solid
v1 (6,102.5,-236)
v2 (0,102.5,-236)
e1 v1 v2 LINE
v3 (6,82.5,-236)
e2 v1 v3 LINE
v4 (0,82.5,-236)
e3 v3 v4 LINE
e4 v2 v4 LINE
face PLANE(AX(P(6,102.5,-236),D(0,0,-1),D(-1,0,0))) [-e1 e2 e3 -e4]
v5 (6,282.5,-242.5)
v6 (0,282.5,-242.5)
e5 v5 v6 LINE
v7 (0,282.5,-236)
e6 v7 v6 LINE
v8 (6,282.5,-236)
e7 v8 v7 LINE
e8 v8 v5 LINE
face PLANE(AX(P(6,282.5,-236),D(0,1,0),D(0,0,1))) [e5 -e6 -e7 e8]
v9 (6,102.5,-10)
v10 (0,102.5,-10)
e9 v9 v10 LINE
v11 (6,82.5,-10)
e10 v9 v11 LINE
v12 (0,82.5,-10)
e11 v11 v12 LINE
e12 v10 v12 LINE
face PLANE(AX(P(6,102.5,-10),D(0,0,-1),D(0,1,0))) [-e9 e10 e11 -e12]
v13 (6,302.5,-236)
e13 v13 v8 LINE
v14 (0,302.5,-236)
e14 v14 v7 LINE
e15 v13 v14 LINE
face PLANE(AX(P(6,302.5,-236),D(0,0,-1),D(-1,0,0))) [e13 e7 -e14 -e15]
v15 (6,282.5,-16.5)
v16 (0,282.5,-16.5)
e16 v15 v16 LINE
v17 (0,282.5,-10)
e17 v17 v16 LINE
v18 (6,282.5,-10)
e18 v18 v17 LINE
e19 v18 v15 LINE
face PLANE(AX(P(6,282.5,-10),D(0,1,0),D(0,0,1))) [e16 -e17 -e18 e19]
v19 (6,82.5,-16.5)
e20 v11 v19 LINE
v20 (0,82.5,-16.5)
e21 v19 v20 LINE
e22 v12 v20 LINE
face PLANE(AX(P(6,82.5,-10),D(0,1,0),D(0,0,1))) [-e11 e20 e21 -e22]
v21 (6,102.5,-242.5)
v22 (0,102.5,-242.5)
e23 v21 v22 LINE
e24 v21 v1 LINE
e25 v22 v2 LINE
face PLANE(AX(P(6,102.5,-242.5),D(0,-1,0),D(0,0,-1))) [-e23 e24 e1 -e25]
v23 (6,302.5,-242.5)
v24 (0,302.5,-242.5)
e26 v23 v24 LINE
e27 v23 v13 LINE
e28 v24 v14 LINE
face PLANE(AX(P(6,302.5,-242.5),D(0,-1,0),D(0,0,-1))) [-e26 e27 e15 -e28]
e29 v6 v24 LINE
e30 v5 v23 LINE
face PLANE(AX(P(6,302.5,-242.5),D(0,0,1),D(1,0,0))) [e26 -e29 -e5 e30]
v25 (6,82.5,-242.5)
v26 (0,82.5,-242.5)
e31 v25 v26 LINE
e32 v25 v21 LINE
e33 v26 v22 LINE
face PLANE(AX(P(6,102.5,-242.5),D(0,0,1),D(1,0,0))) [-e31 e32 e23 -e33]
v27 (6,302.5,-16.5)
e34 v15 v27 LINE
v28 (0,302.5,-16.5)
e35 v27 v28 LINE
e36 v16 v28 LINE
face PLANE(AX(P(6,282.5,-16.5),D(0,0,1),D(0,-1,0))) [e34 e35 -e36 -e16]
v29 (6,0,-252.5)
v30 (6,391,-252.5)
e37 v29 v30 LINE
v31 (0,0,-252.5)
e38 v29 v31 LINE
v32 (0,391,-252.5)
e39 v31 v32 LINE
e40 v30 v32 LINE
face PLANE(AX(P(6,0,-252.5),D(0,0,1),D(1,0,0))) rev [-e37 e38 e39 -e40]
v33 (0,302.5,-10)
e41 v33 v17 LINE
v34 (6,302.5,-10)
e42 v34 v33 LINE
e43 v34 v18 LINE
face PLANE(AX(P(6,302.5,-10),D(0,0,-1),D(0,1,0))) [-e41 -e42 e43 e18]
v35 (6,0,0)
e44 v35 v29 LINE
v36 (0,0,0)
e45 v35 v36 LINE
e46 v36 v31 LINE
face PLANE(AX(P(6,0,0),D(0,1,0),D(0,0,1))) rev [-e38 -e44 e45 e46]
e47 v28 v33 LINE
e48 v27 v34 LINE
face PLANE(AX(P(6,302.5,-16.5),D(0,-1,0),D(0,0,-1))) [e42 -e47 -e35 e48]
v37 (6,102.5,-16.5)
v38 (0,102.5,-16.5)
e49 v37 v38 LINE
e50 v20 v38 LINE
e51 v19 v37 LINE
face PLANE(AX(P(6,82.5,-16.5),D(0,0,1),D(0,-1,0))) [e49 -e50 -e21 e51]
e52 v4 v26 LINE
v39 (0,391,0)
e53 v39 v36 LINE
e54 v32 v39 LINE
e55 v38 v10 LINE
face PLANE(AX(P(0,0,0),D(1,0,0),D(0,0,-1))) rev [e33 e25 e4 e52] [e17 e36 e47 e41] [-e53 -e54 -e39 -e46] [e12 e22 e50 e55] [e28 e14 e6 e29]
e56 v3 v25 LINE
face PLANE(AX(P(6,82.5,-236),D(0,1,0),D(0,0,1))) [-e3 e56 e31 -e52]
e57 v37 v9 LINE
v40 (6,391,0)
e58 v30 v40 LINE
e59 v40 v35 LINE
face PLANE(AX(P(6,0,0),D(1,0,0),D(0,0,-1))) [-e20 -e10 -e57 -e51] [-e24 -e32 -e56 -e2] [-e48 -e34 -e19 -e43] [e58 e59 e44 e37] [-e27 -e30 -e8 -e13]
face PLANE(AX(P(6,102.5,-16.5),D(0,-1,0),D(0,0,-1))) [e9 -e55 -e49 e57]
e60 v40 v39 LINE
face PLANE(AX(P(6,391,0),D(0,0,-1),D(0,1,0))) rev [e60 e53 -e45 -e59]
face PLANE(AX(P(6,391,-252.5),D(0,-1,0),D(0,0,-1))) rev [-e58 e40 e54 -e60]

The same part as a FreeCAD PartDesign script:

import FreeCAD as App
import Part
import Sketcher
from FreeCAD import Vector
Q = App.Units.Quantity

doc = App.newDocument("Part")
body = doc.addObject("PartDesign::Body", "Body")

# Sketch on YZ plane
sketch1 = body.newObject("Sketcher::SketchObject", "Sketch")
sketch1.AttachmentSupport = (doc.getObject("YZ_Plane"), [""])
sketch1.MapMode = "FlatFace"
sketch1.addGeometry(Part.LineSegment(Vector(391, 0, 0), Vector(0, 0, 0)), False)
sketch1.addGeometry(Part.LineSegment(Vector(0, 0, 0), Vector(0, -252, 0)), False)
sketch1.addGeometry(Part.LineSegment(Vector(0, -252, 0), Vector(391, -252, 0)), False)
sketch1.addGeometry(Part.LineSegment(Vector(391, -252, 0), Vector(391, 0, 0)), False)
sketch1.addGeometry(Part.LineSegment(Vector(82, -16, 0), Vector(82, -10, 0)), False)
sketch1.addGeometry(Part.LineSegment(Vector(82, -10, 0), Vector(102, -10, 0)), False)
sketch1.addGeometry(Part.LineSegment(Vector(102, -10, 0), Vector(102, -16, 0)), False)
sketch1.addGeometry(Part.LineSegment(Vector(102, -16, 0), Vector(82, -16, 0)), False)
sketch1.addGeometry(Part.LineSegment(Vector(82, -242, 0), Vector(82, -236, 0)), False)
sketch1.addGeometry(Part.LineSegment(Vector(82, -236, 0), Vector(102, -236, 0)), False)
sketch1.addGeometry(Part.LineSegment(Vector(102, -236, 0), Vector(102, -242, 0)), False)
sketch1.addGeometry(Part.LineSegment(Vector(102, -242, 0), Vector(82, -242, 0)), False)
sketch1.addGeometry(Part.LineSegment(Vector(282, -16, 0), Vector(282, -10, 0)), False)
sketch1.addGeometry(Part.LineSegment(Vector(282, -10, 0), Vector(302, -10, 0)), False)
sketch1.addGeometry(Part.LineSegment(Vector(302, -10, 0), Vector(302, -16, 0)), False)
sketch1.addGeometry(Part.LineSegment(Vector(302, -16, 0), Vector(282, -16, 0)), False)
sketch1.addGeometry(Part.LineSegment(Vector(282, -242, 0), Vector(282, -236, 0)), False)
sketch1.addGeometry(Part.LineSegment(Vector(282, -236, 0), Vector(302, -236, 0)), False)
sketch1.addGeometry(Part.LineSegment(Vector(302, -236, 0), Vector(302, -242, 0)), False)
sketch1.addGeometry(Part.LineSegment(Vector(302, -242, 0), Vector(282, -242, 0)), False)
sketch1.addConstraint(Sketcher.Constraint("Coincident", 0, 2, 1, 1))
sketch1.addConstraint(Sketcher.Constraint("Coincident", 1, 2, 2, 1))
sketch1.addConstraint(Sketcher.Constraint("Coincident", 2, 2, 3, 1))
sketch1.addConstraint(Sketcher.Constraint("Coincident", 3, 2, 0, 1))
sketch1.addConstraint(Sketcher.Constraint("Coincident", 4, 2, 5, 1))
sketch1.addConstraint(Sketcher.Constraint("Coincident", 5, 2, 6, 1))
sketch1.addConstraint(Sketcher.Constraint("Coincident", 6, 2, 7, 1))
sketch1.addConstraint(Sketcher.Constraint("Coincident", 7, 2, 4, 1))
sketch1.addConstraint(Sketcher.Constraint("Coincident", 8, 2, 9, 1))
sketch1.addConstraint(Sketcher.Constraint("Coincident", 9, 2, 10, 1))
sketch1.addConstraint(Sketcher.Constraint("Coincident", 10, 2, 11, 1))
sketch1.addConstraint(Sketcher.Constraint("Coincident", 11, 2, 8, 1))
sketch1.addConstraint(Sketcher.Constraint("Coincident", 12, 2, 13, 1))
sketch1.addConstraint(Sketcher.Constraint("Coincident", 13, 2, 14, 1))
sketch1.addConstraint(Sketcher.Constraint("Coincident", 14, 2, 15, 1))
sketch1.addConstraint(Sketcher.Constraint("Coincident", 15, 2, 12, 1))
sketch1.addConstraint(Sketcher.Constraint("Coincident", 16, 2, 17, 1))
sketch1.addConstraint(Sketcher.Constraint("Coincident", 17, 2, 18, 1))
sketch1.addConstraint(Sketcher.Constraint("Coincident", 18, 2, 19, 1))
sketch1.addConstraint(Sketcher.Constraint("Coincident", 19, 2, 16, 1))
sketch1.addConstraint(Sketcher.Constraint("Horizontal", 0))
sketch1.addConstraint(Sketcher.Constraint("Vertical", 1))
sketch1.addConstraint(Sketcher.Constraint("Horizontal", 2))
sketch1.addConstraint(Sketcher.Constraint("Vertical", 3))
sketch1.addConstraint(Sketcher.Constraint("Vertical", 4))
sketch1.addConstraint(Sketcher.Constraint("Horizontal", 5))
sketch1.addConstraint(Sketcher.Constraint("Vertical", 6))
sketch1.addConstraint(Sketcher.Constraint("Horizontal", 7))
sketch1.addConstraint(Sketcher.Constraint("Vertical", 8))
sketch1.addConstraint(Sketcher.Constraint("Horizontal", 9))
sketch1.addConstraint(Sketcher.Constraint("Vertical", 10))
sketch1.addConstraint(Sketcher.Constraint("Horizontal", 11))
sketch1.addConstraint(Sketcher.Constraint("Vertical", 12))
sketch1.addConstraint(Sketcher.Constraint("Horizontal", 13))
sketch1.addConstraint(Sketcher.Constraint("Vertical", 14))
sketch1.addConstraint(Sketcher.Constraint("Horizontal", 15))
sketch1.addConstraint(Sketcher.Constraint("Vertical", 16))
sketch1.addConstraint(Sketcher.Constraint("Horizontal", 17))
sketch1.addConstraint(Sketcher.Constraint("Vertical", 18))
sketch1.addConstraint(Sketcher.Constraint("Horizontal", 19))
sketch1.addConstraint(Sketcher.Constraint("Coincident", 0, 2, -1, 1))
sketch1.addConstraint(Sketcher.Constraint("Horizontal", 5, 2, 12, 2))
sketch1.addConstraint(Sketcher.Constraint("Horizontal", 7, 2, 14, 2))
sketch1.addConstraint(Sketcher.Constraint("Horizontal", 9, 2, 16, 2))
sketch1.addConstraint(Sketcher.Constraint("Horizontal", 11, 2, 18, 2))
sketch1.addConstraint(Sketcher.Constraint("Vertical", 7, 2, 8, 2))
sketch1.addConstraint(Sketcher.Constraint("Vertical", 6, 2, 9, 2))
sketch1.addConstraint(Sketcher.Constraint("Vertical", 15, 2, 16, 2))
sketch1.addConstraint(Sketcher.Constraint("Vertical", 14, 2, 17, 2))
sketch1.addConstraint(Sketcher.Constraint("Equal", 11, 13))
sketch1.addConstraint(Sketcher.Constraint("Equal", 6, 8))
sketch1.addConstraint(Sketcher.Constraint("DistanceX", 0, 2, 0, 1, Q("391 mm")))
sketch1.addConstraint(Sketcher.Constraint("DistanceX", 5, 1, 5, 2, Q("20 mm")))
sketch1.addConstraint(Sketcher.Constraint("DistanceY", 1, 2, 1, 1, Q("252.5 mm")))
sketch1.addConstraint(Sketcher.Constraint("DistanceY", 4, 1, 4, 2, Q("6.5 mm")))
sketch1.addConstraint(Sketcher.Constraint("DistanceY", 4, 2, -1, 1, Q("10 mm")))
sketch1.addConstraint(Sketcher.Constraint("DistanceY", 8, 2, -1, 1, Q("236 mm")))
sketch1.addConstraint(Sketcher.Constraint("DistanceX", 5, 2, 12, 2, Q("180 mm")))
sketch1.addConstraint(Sketcher.Constraint("DistanceX", -1, 1, 4, 2, Q("82.5 mm")))
pad1 = body.newObject("PartDesign::Pad", "Pad")
pad1.Profile = sketch1
pad1.Length = 6

doc.recompute()
